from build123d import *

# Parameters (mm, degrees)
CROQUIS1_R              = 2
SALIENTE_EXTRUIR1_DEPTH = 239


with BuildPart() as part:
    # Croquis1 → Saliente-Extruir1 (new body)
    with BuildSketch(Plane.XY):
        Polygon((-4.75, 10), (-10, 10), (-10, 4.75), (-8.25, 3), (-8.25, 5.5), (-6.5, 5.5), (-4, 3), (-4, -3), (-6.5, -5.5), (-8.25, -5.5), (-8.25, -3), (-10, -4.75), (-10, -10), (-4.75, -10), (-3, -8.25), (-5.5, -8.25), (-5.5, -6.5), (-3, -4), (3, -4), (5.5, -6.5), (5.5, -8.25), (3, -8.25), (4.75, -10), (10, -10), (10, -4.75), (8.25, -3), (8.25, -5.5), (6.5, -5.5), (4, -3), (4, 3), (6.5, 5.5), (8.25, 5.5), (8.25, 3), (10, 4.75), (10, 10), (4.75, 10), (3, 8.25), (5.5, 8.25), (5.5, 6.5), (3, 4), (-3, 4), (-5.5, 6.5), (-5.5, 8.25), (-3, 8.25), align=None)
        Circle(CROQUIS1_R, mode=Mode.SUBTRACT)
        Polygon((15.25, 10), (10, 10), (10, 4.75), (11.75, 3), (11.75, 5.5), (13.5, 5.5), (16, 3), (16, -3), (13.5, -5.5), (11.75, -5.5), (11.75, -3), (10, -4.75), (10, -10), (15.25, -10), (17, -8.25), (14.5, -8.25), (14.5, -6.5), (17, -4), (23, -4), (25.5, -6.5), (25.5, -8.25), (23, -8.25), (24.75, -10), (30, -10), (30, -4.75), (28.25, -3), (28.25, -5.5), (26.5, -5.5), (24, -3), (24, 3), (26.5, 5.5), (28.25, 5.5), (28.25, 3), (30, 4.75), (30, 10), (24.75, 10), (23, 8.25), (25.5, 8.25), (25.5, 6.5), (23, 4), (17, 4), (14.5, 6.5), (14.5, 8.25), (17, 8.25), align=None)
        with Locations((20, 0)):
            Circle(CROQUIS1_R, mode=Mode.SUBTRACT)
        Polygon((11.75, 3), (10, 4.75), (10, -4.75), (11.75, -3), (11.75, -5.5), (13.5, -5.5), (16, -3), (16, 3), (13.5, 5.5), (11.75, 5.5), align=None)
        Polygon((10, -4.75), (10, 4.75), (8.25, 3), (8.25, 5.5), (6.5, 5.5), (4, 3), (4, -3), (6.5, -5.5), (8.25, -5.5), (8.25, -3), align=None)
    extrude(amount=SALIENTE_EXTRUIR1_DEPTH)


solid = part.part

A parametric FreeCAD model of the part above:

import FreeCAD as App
import Part
import Sketcher
Q = App.Units.Quantity


def add_polygon(sketch, points):
    """Adds a closed chain of lines whose ends are joined by coincident constraints."""
    first, n = sketch.GeometryCount, len(points)
    for a, b in zip(points, points[1:] + points[:1]):
        sketch.addGeometry(Part.LineSegment(App.Vector(*a, 0), App.Vector(*b, 0)), False)
    for i in range(n):
        sketch.addConstraint(Sketcher.Constraint("Coincident", first + i, 2, first + (i + 1) % n, 1))

doc = App.newDocument("Part")
body = doc.addObject("PartDesign::Body", "Body")

# Sketch on XY plane
sketch1 = body.newObject("Sketcher::SketchObject", "Sketch")
sketch1.AttachmentSupport = (doc.getObject("XY_Plane"), [""])
sketch1.MapMode = "FlatFace"
add_polygon(sketch1, [(-4.75, 10), (-10, 10), (-10, 4.75), (-8.25, 3), (-8.25, 5.5), (-6.5, 5.5), (-4, 3), (-4, -3), (-6.5, -5.5), (-8.25, -5.5), (-8.25, -3), (-10, -4.75), (-10, -10), (-4.75, -10), (-3, -8.25), (-5.5, -8.25), (-5.5, -6.5), (-3, -4), (3, -4), (5.5, -6.5), (5.5, -8.25), (3, -8.25), (4.75, -10), (15.25, -10), (17, -8.25), (14.5, -8.25), (14.5, -6.5), (17, -4), (23, -4), (25.5, -6.5), (25.5, -8.25), (23, -8.25), (24.75, -10), (30, -10), (30, -4.75), (28.25, -3), (28.25, -5.5), (26.5, -5.5), (24, -3), (24, 3), (26.5, 5.5), (28.25, 5.5), (28.25, 3), (30, 4.75), (30, 10), (24.75, 10), (23, 8.25), (25.5, 8.25), (25.5, 6.5), (23, 4), (17, 4), (14.5, 6.5), (14.5, 8.25), (17, 8.25), (15.25, 10), (4.75, 10), (3, 8.25), (5.5, 8.25), (5.5, 6.5), (3, 4), (-3, 4), (-5.5, 6.5), (-5.5, 8.25), (-3, 8.25)])  # lines 0-63
sketch1.addGeometry(Part.Circle(App.Vector(0, 0, 0), App.Vector(0, 0, 1), 2), False)  # 64
sketch1.addGeometry(Part.Circle(App.Vector(20, 0, 0), App.Vector(0, 0, 1), 2), False)  # 65
sketch1.addConstraint([
    Sketcher.Constraint("Horizontal", 0),
    Sketcher.Constraint("Vertical", 1),
    Sketcher.Constraint("Vertical", 3),
    Sketcher.Constraint("Horizontal", 4),
    Sketcher.Constraint("Vertical", 6),
    Sketcher.Constraint("Horizontal", 8),
    Sketcher.Constraint("Vertical", 9),
    Sketcher.Constraint("Vertical", 11),
    Sketcher.Constraint("Horizontal", 12),
    Sketcher.Constraint("Horizontal", 14),
    Sketcher.Constraint("Vertical", 15),
    Sketcher.Constraint("Horizontal", 17),
    Sketcher.Constraint("Vertical", 19),
    Sketcher.Constraint("Horizontal", 20),
    Sketcher.Constraint("Horizontal", 22),
    Sketcher.Constraint("Horizontal", 24),
    Sketcher.Constraint("Vertical", 25),
    Sketcher.Constraint("Horizontal", 27),
    Sketcher.Constraint("Vertical", 29),
    Sketcher.Constraint("Horizontal", 30),
    Sketcher.Constraint("Horizontal", 32),
    Sketcher.Constraint("Vertical", 33),
    Sketcher.Constraint("Vertical", 35),
    Sketcher.Constraint("Horizontal", 36),
    Sketcher.Constraint("Vertical", 38),
    Sketcher.Constraint("Horizontal", 40),
    Sketcher.Constraint("Vertical", 41),
    Sketcher.Constraint("Vertical", 43),
    Sketcher.Constraint("Horizontal", 44),
    Sketcher.Constraint("Horizontal", 46),
    Sketcher.Constraint("Vertical", 47),
    Sketcher.Constraint("Horizontal", 49),
    Sketcher.Constraint("Vertical", 51),
    Sketcher.Constraint("Horizontal", 52),
    Sketcher.Constraint("Horizontal", 54),
    Sketcher.Constraint("Horizontal", 56),
    Sketcher.Constraint("Vertical", 57),
    Sketcher.Constraint("Horizontal", 59),
    Sketcher.Constraint("Vertical", 61),
    Sketcher.Constraint("Horizontal", 62),
    Sketcher.Constraint("Coincident", 64, 3, -1, 1),
    Sketcher.Constraint("Equal", 64, 65),
    Sketcher.Constraint("Symmetric", 12, 2, 54, 2, -1, 1),
    Sketcher.Constraint("Symmetric", 13, 2, 55, 2, -1, 1),
    Sketcher.Constraint("Symmetric", 15, 2, 57, 2, -1, 1),
    Sketcher.Constraint("Symmetric", 16, 2, 58, 2, -1, 1),
    Sketcher.Constraint("Symmetric", 18, 2, 60, 2, -1, 1),
    Sketcher.Constraint("Symmetric", 20, 2, 62, 2, -1, 1),
    Sketcher.Constraint("Symmetric", 21, 2, 63, 2, -1, 1),
    Sketcher.Constraint("Symmetric", 15, 2, 18, 2, -2),
    Sketcher.Constraint("Symmetric", 13, 2, 20, 2, -2),
    Sketcher.Constraint("Symmetric", 12, 2, 21, 2, -2),
    Sketcher.Constraint("Symmetric", 4, 2, 7, 2, -1),
    Sketcher.Constraint("Symmetric", 2, 2, 9, 2, -1),
    Sketcher.Constraint("Symmetric", 1, 2, 10, 2, -1),
    Sketcher.Constraint("Symmetric", 36, 2, 39, 2, -1),
    Sketcher.Constraint("Symmetric", 34, 2, 41, 2, -1),
    Sketcher.Constraint("Symmetric", 33, 2, 42, 2, -1),
    Sketcher.Constraint("Symmetric", 31, 2, 44, 2, -1),
    Sketcher.Constraint("Symmetric", 30, 2, 45, 2, -1),
    Sketcher.Constraint("Symmetric", 28, 2, 47, 2, -1),
    Sketcher.Constraint("Symmetric", 27, 2, 48, 2, -1),
    Sketcher.Constraint("Symmetric", 25, 2, 50, 2, -1),
    Sketcher.Constraint("Symmetric", 23, 2, 52, 2, -1),
    Sketcher.Constraint("PointOnObject", 65, 3, -1),
    Sketcher.Constraint("Parallel", 2, 5),
    Sketcher.Constraint("Perpendicular", 5, 7),
    Sketcher.Constraint("Parallel", 7, 10),
    Sketcher.Constraint("Parallel", 10, 13),
    Sketcher.Constraint("Parallel", 13, 16),
    Sketcher.Constraint("Perpendicular", 16, 18),
    Sketcher.Constraint("Perpendicular", 21, 23),
    Sketcher.Constraint("Parallel", 23, 26),
    Sketcher.Constraint("Perpendicular", 26, 28),
    Sketcher.Constraint("Parallel", 28, 31),
    Sketcher.Constraint("Parallel", 31, 34),
    Sketcher.Constraint("Parallel", 34, 37),
    Sketcher.Constraint("Perpendicular", 37, 39),
    Sketcher.Constraint("Perpendicular", 48, 50),
    Sketcher.Constraint("Parallel", 50, 53),
    Sketcher.Constraint("Perpendicular", 58, 60),
    Sketcher.Constraint("Horizontal", 2, 2, 5, 2),
    Sketcher.Constraint("Horizontal", 20, 2, 23, 2),
    Sketcher.Constraint("Horizontal", 18, 2, 25, 2),
    Sketcher.Constraint("Horizontal", 17, 2, 26, 2),
    Sketcher.Constraint("Horizontal", 25, 2, 28, 2),
    Sketcher.Constraint("Horizontal", 24, 2, 29, 2),
    Sketcher.Constraint("Horizontal", 22, 2, 31, 2),
    Sketcher.Constraint("Horizontal", 10, 2, 33, 2),
    Sketcher.Constraint("Horizontal", 9, 2, 34, 2),
    Sketcher.Constraint("Horizontal", 8, 2, 35, 2),
    Sketcher.Constraint("Horizontal", 34, 2, 37, 2),
    Sketcher.Constraint("Vertical", 13, 2, 16, 2),
    Sketcher.Constraint("Vertical", 23, 2, 26, 2),
    Sketcher.Constraint("Vertical", 27, 2, 30, 2),
    Sketcher.Constraint("Equal", 17, 27),
    Sketcher.Constraint("Equal", 12, 32),
    Sketcher.Constraint("Equal", 8, 36),
    Sketcher.Constraint("Equal", 44, 1),
    Sketcher.Constraint("Equal", 62, 3),
    Sketcher.Constraint("Equal", 59, 6),
    Sketcher.Constraint("Equal", 40, 15),
    Sketcher.Constraint("Equal", 10, 13),
    Sketcher.Constraint("Diameter", 64, Q("4 mm")),
    Sketcher.Constraint("DistanceX", 17, 1, 17, 2, Q("6 mm")),
    Sketcher.Constraint("DistanceX", 14, 2, 14, 1, Q("2.5 mm")),
    Sketcher.Constraint("DistanceX", 22, 1, 22, 2, Q("10.5 mm")),
    Sketcher.Constraint("DistanceX", -1, 1, 65, 3, Q("20 mm")),
    Sketcher.Constraint("DistanceX", 0, 2, -1, 1, Q("10 mm")),
    Sketcher.Constraint("DistanceX", 5, 2, -1, 1, Q("4 mm")),
    Sketcher.Constraint("DistanceX", -1, 1, 23, 2, Q("17 mm")),
])
pad1 = body.newObject("PartDesign::Pad", "Pad")
pad1.Profile = sketch1
pad1.Length = 239

doc.recompute()
